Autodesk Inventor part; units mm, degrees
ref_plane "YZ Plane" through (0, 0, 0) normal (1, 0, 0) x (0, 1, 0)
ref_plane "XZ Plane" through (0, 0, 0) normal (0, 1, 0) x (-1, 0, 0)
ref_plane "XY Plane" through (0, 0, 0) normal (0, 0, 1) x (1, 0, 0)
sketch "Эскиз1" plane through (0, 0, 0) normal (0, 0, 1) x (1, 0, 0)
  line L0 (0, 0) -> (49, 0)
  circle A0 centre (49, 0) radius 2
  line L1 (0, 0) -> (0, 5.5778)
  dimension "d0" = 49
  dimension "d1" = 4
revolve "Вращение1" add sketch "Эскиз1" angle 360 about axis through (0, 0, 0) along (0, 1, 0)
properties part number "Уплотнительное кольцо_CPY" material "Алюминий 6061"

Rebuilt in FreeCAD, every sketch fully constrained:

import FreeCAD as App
import Part
import Sketcher
Q = App.Units.Quantity

doc = App.newDocument("Part")
body = doc.addObject("PartDesign::Body", "Body")

# Sketch on XY plane
sketch1 = doc.addObject("Sketcher::SketchObject", "Sketch")
body.addObject(sketch1)
sketch1.AttachmentSupport = (doc.XY_Plane, [""])
sketch1.MapMode = "FlatFace"
sketch1.addGeometry(Part.Circle(App.Vector(49, 0, 0), App.Vector(0, 0, 1), 2), False)
sketch1.addConstraint(Sketcher.Constraint("PointOnObject", 0, 3, -1))
sketch1.addConstraint(Sketcher.Constraint("Diameter", 0, Q("4 mm")))
sketch1.addConstraint(Sketcher.Constraint("DistanceX", -1, 1, 0, 3, Q("49 mm")))
revolution = doc.addObject("PartDesign::Revolution", "Revolution")
body.addObject(revolution)
revolution.Profile = sketch1
revolution.ReferenceAxis = (sketch1, ["V_Axis"])
revolution.Angle = 360

doc.recompute()
